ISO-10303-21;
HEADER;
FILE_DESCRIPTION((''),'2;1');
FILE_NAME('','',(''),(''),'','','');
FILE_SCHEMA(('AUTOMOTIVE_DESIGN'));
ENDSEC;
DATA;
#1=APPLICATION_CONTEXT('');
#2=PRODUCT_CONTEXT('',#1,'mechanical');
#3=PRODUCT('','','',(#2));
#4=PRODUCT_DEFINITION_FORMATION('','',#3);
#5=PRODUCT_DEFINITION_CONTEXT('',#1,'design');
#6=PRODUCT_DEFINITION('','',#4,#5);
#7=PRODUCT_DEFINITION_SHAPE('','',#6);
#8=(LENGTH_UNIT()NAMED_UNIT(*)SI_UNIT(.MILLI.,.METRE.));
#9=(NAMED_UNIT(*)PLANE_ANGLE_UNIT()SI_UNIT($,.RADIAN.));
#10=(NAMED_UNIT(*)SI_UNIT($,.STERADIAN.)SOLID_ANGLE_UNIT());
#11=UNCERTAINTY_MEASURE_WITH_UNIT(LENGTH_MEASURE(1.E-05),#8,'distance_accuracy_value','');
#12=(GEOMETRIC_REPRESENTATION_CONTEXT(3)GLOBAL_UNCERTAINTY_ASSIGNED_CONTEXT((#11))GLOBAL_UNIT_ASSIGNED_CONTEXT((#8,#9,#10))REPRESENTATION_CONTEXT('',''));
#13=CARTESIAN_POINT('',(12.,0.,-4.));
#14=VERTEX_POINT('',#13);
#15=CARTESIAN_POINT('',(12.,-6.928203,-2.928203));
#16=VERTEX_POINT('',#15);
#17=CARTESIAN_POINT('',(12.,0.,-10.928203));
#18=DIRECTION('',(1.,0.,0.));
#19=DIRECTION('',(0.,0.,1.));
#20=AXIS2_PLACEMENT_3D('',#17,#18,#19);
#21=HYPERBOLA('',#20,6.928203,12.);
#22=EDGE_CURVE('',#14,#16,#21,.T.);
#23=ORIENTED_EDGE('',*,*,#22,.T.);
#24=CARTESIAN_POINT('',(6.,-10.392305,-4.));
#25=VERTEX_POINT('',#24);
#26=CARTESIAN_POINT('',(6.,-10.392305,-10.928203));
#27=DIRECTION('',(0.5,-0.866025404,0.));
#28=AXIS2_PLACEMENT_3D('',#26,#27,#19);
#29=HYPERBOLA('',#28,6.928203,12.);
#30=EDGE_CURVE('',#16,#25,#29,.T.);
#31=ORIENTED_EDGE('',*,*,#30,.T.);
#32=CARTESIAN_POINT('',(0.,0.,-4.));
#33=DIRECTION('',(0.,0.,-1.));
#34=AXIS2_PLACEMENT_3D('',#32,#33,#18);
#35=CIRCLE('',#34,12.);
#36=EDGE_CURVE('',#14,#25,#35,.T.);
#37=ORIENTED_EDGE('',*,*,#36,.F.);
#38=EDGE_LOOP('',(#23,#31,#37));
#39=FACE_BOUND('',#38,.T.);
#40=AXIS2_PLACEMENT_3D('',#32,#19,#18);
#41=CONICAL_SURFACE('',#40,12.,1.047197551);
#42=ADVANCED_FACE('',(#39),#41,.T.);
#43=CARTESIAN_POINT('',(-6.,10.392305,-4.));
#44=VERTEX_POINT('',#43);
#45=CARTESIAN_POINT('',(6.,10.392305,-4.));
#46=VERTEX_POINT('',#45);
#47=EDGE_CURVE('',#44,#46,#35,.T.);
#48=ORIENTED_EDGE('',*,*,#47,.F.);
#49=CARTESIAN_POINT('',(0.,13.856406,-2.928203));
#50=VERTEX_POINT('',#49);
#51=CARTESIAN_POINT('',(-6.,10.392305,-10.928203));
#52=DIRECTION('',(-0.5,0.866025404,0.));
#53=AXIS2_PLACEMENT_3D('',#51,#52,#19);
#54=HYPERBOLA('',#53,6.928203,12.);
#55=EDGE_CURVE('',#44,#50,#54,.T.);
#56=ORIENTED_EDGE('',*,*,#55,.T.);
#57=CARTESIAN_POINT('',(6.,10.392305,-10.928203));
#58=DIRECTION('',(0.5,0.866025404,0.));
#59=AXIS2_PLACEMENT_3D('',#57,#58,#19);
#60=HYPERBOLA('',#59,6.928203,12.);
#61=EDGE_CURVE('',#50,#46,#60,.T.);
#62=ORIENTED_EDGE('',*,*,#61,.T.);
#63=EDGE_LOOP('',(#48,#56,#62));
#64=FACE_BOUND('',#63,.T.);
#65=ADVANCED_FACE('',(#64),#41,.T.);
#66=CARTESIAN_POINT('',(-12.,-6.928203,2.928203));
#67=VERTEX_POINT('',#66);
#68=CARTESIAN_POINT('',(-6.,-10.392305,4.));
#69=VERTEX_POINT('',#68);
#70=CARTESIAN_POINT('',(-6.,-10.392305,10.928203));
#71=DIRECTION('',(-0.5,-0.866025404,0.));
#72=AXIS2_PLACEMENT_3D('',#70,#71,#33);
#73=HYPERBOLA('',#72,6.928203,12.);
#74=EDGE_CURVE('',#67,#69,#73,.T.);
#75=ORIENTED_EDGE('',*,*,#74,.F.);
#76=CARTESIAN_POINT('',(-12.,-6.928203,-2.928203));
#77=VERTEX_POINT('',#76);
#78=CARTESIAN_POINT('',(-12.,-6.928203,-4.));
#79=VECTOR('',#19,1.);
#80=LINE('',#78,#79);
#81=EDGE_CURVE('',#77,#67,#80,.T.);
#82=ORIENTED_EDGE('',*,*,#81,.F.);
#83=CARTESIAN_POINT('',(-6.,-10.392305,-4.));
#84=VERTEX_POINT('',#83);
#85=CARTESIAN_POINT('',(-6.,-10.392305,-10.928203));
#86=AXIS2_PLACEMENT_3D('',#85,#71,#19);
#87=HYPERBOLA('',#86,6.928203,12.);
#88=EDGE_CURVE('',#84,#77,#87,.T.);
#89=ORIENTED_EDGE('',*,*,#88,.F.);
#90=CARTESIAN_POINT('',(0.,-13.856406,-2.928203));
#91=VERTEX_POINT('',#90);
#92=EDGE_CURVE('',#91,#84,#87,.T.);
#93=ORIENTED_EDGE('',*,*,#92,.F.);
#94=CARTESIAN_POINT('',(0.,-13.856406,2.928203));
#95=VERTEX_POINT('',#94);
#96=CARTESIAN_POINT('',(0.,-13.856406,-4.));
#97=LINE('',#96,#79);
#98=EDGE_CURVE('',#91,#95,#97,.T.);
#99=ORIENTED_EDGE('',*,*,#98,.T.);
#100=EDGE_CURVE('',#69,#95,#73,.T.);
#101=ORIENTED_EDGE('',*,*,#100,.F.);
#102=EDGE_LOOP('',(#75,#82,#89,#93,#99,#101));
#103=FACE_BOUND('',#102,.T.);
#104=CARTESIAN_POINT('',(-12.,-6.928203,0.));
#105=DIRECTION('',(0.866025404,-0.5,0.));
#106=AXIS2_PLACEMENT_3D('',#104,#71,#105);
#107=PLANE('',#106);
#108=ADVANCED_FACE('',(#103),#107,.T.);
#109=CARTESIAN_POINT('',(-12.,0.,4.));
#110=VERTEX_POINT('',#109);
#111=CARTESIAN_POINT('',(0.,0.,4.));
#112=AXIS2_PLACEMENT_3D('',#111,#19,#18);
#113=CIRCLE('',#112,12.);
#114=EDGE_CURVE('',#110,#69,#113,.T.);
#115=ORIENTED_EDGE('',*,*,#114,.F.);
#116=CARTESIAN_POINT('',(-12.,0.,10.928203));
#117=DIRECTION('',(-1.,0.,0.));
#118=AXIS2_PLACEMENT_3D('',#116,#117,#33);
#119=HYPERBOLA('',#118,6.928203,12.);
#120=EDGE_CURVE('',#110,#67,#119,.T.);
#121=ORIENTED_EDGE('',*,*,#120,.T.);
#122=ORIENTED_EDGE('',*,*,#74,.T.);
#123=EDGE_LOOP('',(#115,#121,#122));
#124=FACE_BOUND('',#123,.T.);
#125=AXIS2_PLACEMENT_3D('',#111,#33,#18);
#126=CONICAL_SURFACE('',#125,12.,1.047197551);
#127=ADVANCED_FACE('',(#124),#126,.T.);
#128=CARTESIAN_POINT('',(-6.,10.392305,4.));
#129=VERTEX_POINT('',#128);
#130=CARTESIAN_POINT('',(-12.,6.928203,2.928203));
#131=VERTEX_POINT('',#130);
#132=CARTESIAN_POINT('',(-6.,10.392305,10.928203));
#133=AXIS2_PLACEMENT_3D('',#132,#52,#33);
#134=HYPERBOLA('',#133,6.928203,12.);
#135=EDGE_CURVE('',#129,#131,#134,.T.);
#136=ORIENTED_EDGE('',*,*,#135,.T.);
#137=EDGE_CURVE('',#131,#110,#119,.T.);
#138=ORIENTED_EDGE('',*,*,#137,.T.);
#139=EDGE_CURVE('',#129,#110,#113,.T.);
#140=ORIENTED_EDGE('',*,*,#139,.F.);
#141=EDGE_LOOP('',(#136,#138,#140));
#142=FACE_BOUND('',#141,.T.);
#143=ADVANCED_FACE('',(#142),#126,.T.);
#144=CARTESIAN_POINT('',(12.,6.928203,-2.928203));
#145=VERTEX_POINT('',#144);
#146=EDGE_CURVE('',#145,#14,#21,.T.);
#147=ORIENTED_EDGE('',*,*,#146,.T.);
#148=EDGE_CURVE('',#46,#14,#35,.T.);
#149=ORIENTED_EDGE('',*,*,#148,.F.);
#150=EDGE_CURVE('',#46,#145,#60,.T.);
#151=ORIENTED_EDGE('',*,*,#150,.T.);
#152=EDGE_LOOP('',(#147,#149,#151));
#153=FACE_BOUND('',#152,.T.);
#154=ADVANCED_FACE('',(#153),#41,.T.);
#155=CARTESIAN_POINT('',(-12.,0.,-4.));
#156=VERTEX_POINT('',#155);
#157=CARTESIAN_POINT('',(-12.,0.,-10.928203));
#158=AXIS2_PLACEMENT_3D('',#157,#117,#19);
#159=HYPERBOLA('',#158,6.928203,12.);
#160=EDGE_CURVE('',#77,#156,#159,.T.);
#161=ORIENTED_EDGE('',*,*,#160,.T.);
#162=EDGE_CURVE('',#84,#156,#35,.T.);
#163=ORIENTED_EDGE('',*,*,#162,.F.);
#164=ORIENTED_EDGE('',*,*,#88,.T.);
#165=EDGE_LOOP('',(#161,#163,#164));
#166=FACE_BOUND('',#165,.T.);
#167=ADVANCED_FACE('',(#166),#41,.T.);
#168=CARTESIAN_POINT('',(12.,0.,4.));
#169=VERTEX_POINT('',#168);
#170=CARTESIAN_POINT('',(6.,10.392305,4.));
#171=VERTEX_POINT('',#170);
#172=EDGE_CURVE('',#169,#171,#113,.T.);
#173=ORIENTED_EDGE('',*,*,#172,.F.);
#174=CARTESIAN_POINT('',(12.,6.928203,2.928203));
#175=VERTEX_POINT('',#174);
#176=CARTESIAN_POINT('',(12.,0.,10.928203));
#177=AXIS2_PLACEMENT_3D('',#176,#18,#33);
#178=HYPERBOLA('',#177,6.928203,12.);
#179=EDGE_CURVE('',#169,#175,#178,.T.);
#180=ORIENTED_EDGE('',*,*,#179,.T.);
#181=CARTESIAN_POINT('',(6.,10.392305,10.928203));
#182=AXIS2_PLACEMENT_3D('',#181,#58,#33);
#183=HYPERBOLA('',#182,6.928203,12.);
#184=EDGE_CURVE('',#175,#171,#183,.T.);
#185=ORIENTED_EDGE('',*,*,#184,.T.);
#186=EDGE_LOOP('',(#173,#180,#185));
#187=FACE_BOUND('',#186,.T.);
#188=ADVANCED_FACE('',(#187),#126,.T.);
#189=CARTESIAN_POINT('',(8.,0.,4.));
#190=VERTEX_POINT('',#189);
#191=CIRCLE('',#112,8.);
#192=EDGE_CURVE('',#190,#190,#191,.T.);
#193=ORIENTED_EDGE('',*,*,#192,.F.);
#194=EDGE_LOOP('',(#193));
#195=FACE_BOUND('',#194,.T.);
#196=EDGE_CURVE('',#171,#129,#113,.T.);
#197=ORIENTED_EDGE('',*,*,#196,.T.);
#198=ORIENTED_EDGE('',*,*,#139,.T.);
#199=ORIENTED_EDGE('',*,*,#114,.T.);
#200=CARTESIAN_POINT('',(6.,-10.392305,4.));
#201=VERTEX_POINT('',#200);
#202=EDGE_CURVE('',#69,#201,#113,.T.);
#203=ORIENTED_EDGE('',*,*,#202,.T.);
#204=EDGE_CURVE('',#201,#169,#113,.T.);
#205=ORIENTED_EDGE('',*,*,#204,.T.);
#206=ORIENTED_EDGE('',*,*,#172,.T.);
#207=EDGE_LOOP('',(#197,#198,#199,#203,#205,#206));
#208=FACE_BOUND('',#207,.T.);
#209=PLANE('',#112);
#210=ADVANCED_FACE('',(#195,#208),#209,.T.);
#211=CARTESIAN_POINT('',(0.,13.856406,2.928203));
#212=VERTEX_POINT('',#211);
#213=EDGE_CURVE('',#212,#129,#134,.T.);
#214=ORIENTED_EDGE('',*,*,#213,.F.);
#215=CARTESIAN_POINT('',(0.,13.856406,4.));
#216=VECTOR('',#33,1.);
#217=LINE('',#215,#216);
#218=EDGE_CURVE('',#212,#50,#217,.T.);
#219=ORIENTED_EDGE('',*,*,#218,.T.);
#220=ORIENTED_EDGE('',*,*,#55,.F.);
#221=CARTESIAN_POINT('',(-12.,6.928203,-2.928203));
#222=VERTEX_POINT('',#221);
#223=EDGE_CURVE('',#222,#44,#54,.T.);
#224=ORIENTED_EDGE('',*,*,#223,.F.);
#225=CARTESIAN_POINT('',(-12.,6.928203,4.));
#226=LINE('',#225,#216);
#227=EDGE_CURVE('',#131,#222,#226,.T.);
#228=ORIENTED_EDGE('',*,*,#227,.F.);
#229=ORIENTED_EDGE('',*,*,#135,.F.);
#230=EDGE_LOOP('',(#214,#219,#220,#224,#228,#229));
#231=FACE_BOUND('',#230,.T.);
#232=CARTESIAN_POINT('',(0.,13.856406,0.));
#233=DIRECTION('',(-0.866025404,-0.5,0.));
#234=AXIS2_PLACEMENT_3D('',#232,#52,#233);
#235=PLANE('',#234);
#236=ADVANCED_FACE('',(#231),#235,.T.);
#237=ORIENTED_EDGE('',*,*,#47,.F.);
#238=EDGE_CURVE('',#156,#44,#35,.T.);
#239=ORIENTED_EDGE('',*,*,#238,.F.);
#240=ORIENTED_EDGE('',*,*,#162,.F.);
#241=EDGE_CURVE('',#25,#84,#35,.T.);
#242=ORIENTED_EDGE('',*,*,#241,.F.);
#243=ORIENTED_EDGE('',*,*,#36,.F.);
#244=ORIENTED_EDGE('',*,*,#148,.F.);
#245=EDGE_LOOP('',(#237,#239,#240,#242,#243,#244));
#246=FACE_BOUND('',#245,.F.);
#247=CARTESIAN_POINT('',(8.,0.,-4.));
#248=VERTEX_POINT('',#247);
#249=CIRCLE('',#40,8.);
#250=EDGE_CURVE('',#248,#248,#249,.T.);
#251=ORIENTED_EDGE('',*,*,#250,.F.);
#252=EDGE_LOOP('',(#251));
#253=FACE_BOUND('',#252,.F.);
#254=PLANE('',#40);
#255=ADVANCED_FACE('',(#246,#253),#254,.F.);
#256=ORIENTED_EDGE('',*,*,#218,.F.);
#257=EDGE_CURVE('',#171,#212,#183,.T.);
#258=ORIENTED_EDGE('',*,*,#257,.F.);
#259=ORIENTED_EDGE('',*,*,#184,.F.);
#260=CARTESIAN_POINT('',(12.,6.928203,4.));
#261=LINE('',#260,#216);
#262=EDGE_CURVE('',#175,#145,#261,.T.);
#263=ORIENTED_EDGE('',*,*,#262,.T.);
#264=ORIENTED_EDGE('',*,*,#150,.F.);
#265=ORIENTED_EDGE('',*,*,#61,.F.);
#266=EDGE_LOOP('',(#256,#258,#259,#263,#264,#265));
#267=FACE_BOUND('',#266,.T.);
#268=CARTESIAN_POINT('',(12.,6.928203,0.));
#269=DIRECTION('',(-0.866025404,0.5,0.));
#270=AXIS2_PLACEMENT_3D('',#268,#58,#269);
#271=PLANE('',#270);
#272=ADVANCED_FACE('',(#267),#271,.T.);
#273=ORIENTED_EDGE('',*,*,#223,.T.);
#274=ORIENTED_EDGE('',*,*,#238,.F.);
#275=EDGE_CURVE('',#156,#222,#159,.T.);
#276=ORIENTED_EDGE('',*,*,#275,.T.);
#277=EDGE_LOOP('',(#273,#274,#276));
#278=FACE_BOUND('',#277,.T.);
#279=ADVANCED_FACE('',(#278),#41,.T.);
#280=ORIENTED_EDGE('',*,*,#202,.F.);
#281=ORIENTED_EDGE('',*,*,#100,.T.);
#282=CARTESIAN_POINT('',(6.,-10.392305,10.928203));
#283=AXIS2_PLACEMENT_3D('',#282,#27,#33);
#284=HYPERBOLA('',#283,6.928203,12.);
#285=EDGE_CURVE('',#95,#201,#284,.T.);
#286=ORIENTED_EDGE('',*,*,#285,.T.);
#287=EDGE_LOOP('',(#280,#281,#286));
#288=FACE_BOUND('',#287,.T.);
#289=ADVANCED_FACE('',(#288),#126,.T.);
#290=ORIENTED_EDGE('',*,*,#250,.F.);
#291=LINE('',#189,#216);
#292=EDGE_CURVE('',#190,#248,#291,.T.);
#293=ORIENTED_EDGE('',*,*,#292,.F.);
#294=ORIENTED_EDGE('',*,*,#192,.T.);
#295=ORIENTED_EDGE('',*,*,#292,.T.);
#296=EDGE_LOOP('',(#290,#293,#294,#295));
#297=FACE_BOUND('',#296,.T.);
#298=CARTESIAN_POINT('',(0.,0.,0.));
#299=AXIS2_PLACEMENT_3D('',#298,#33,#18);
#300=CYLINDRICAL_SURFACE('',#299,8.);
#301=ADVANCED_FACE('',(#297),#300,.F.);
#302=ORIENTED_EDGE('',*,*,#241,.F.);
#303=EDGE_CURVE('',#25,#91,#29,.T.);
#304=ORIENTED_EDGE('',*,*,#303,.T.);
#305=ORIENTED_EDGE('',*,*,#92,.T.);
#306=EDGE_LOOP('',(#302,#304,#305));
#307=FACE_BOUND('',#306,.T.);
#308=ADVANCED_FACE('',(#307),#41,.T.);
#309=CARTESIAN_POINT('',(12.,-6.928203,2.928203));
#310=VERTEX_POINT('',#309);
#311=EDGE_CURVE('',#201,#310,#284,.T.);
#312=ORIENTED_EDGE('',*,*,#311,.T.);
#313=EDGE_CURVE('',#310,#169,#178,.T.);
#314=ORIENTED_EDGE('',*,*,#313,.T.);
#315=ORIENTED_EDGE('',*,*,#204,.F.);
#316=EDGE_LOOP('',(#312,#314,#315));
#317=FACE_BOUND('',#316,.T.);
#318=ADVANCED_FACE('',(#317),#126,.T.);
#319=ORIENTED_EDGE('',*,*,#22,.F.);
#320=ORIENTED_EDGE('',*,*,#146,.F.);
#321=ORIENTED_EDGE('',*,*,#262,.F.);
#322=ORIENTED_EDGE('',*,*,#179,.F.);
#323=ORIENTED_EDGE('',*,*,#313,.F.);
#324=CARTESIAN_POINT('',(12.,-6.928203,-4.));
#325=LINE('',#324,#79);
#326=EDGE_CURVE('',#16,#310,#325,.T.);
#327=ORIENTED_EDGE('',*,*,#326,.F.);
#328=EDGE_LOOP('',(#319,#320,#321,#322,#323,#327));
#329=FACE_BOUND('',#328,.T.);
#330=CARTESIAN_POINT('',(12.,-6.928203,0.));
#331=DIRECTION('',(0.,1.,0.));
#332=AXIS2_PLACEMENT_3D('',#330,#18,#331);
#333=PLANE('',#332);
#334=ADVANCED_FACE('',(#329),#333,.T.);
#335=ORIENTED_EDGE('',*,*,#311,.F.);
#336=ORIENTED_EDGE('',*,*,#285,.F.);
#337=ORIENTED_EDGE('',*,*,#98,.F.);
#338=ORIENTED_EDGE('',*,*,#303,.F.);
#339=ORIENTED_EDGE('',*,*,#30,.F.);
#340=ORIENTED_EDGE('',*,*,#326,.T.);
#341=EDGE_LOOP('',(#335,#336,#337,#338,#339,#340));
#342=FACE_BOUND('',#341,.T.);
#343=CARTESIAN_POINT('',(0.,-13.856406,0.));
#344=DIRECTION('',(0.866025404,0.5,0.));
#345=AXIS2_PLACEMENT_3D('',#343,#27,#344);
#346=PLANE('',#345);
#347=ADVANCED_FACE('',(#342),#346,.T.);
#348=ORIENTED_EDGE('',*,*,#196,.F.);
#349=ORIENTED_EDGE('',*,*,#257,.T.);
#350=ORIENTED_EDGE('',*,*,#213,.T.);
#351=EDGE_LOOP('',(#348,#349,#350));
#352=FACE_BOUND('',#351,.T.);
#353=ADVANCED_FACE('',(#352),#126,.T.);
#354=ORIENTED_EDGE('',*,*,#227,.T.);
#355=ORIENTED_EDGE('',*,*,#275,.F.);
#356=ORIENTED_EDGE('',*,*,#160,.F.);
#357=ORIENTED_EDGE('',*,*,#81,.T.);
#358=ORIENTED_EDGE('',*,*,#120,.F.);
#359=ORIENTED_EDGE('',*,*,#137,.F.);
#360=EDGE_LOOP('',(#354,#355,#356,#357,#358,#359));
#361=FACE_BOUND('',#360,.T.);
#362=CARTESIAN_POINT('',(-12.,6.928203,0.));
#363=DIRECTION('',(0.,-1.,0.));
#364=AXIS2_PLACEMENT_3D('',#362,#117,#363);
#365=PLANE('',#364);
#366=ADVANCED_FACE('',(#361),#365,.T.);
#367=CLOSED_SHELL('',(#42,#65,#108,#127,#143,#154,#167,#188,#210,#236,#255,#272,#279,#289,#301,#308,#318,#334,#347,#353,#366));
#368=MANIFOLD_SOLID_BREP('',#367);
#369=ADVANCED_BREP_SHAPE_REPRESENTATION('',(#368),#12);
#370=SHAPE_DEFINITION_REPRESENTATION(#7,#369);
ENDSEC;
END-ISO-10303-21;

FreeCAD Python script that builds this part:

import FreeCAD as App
import Part
import Sketcher
from FreeCAD import Vector
Q = App.Units.Quantity


def faces_at(feature, points):
    """Names of the faces that lie closest to the given points."""
    faces = feature.Shape.Faces
    near = lambda p: min(range(len(faces)), key=lambda i: faces[i].distToShape(Part.Vertex(*p))[0])
    return sorted({f"Face{near(p) + 1}" for p in points})


def add_polygon(sketch, points):
    """Adds a closed chain of lines whose ends are joined by coincident constraints."""
    first, n = sketch.GeometryCount, len(points)
    for a, b in zip(points, points[1:] + points[:1]):
        sketch.addGeometry(Part.LineSegment(App.Vector(*a, 0), App.Vector(*b, 0)), False)
    for i in range(n):
        sketch.addConstraint(Sketcher.Constraint("Coincident", first + i, 2, first + (i + 1) % n, 1))

doc = App.newDocument("Part")
body = doc.addObject("PartDesign::Body", "Body")

# Sketch on XY plane
sketch1 = body.newObject("Sketcher::SketchObject", "Sketch")
sketch1.AttachmentSupport = (doc.getObject("XY_Plane"), [""])
sketch1.MapMode = "FlatFace"
add_polygon(sketch1, [(-12, 6.928203), (-12, -6.928203), (0, -13.856406), (12, -6.928203), (12, 6.928203), (0, 13.856406)])  # lines 0-5
sketch1.addGeometry(Part.Circle(Vector(0, 0, 0), Vector(0, 0, 1), 8), False)  # 6
sketch1.addConstraint(Sketcher.Constraint("Vertical", 0))
sketch1.addConstraint(Sketcher.Constraint("Vertical", 3))
sketch1.addConstraint(Sketcher.Constraint("Coincident", 6, 3, -1, 1))
sketch1.addConstraint(Sketcher.Constraint("Symmetric", 0, 2, 3, 2, -1, 1))
sketch1.addConstraint(Sketcher.Constraint("Symmetric", 1, 2, 4, 2, -1, 1))
sketch1.addConstraint(Sketcher.Constraint("PointOnObject", 1, 2, -2))
sketch1.addConstraint(Sketcher.Constraint("Parallel", 2, 5))
sketch1.addConstraint(Sketcher.Constraint("Horizontal", 0, 2, 2, 2))
sketch1.addConstraint(Sketcher.Constraint("Diameter", 6, 16.0))
sketch1.addConstraint(Sketcher.Constraint("Angle", 1, Q("-30 deg")))
sketch1.addConstraint(Sketcher.Constraint("DistanceX", 0, 2, -1, 1, 12.0))
sketch1.addConstraint(Sketcher.Constraint("DistanceY", 0, 2, 0, 1, 13.856406))
pad1 = body.newObject("PartDesign::Pad", "Pad")
pad1.Profile = sketch1
pad1.Length = 8
pad1.Midplane = True
body2 = doc.addObject("PartDesign::Body", "Body001")

# Sketch on XY plane
sketch2 = body2.newObject("Sketcher::SketchObject", "Sketch001")
sketch2.AttachmentSupport = (doc.getObject("XY_Plane001"), [""])
sketch2.MapMode = "FlatFace"
sketch2.AttachmentOffset = App.Placement(Vector(0, 0, 4), App.Rotation())
add_polygon(sketch2, [(-30.609, 32.465), (-30.609, -32.465), (30.609, -32.465), (30.609, 32.465)])  # lines 0-3
sketch2.addGeometry(Part.Circle(Vector(0, 0, 0), Vector(0, 0, 1), 12), False)  # 4
sketch2.addConstraint(Sketcher.Constraint("Vertical", 0))
sketch2.addConstraint(Sketcher.Constraint("Horizontal", 1))
sketch2.addConstraint(Sketcher.Constraint("Vertical", 2))
sketch2.addConstraint(Sketcher.Constraint("Horizontal", 3))
sketch2.addConstraint(Sketcher.Constraint("Coincident", 4, 3, -1, 1))
sketch2.addConstraint(Sketcher.Constraint("Symmetric", 0, 2, 2, 2, -1, 1))
sketch2.addConstraint(Sketcher.Constraint("Diameter", 4, 24.0))
sketch2.addConstraint(Sketcher.Constraint("DistanceY", 0, 2, 0, 1, 64.93))
sketch2.addConstraint(Sketcher.Constraint("DistanceX", 1, 1, 1, 2, 61.218))
pad2 = body2.newObject("PartDesign::Pad", "Pad001")
pad2.Profile = sketch2
pad2.Length = 8
pad2.Reversed = True
doc.recompute()

datumplane = body2.newObject("PartDesign::Plane", "DatumPlane")
datumplane.AttachmentSupport = (doc.getObject("XY_Plane001"), [""])
datumplane.MapMode = "FlatFace"
datumplane.AttachmentOffset = App.Placement(Vector(0, 0, 4), App.Rotation())
draft = body2.newObject("PartDesign::Draft", "Draft")
draft.Base = (pad2, faces_at(pad2, [
    (0, -32.465, 0),
    (30.609, 0, 0),
    (0, 32.465, 0),
    (-30.609, 0, 0),
    (-12, 0, 0),
]))
draft.NeutralPlane = (datumplane, [""])
draft.Angle = 60
draft.Reversed = True
doc.recompute()

boolean = body.newObject("PartDesign::Boolean", "Boolean")
boolean.Type = "Cut"
boolean.addObjects([body2])
body3 = doc.addObject("PartDesign::Body", "Body002")

# Sketch on XY plane
sketch3 = body3.newObject("Sketcher::SketchObject", "Sketch002")
sketch3.AttachmentSupport = (doc.getObject("XY_Plane002"), [""])
sketch3.MapMode = "FlatFace"
sketch3.AttachmentOffset = App.Placement(Vector(0, 0, -4), App.Rotation())
add_polygon(sketch3, [(-30.609, -32.465), (-30.609, 32.465), (30.609, 32.465), (30.609, -32.465)])  # lines 0-3
sketch3.addGeometry(Part.Circle(Vector(0, 0, 0), Vector(0, 0, 1), 12), False)  # 4
sketch3.addConstraint(Sketcher.Constraint("Vertical", 0))
sketch3.addConstraint(Sketcher.Constraint("Horizontal", 1))
sketch3.addConstraint(Sketcher.Constraint("Vertical", 2))
sketch3.addConstraint(Sketcher.Constraint("Horizontal", 3))
sketch3.addConstraint(Sketcher.Constraint("Coincident", 4, 3, -1, 1))
sketch3.addConstraint(Sketcher.Constraint("Symmetric", 0, 2, 2, 2, -1, 1))
sketch3.addConstraint(Sketcher.Constraint("Diameter", 4, 24.0))
sketch3.addConstraint(Sketcher.Constraint("DistanceY", 0, 1, 0, 2, 64.93))
sketch3.addConstraint(Sketcher.Constraint("DistanceX", 1, 1, 1, 2, 61.218))
pad3 = body3.newObject("PartDesign::Pad", "Pad002")
pad3.Profile = sketch3
pad3.Length = 8
doc.recompute()

datumplane2 = body3.newObject("PartDesign::Plane", "DatumPlane001")
datumplane2.AttachmentSupport = (doc.getObject("XY_Plane002"), [""])
datumplane2.MapMode = "FlatFace"
datumplane2.AttachmentOffset = App.Placement(Vector(0, 0, -4), App.Rotation())
draft2 = body3.newObject("PartDesign::Draft", "Draft001")
draft2.Base = (pad3, faces_at(pad3, [
    (0, -32.465, 0),
    (30.609, 0, 0),
    (0, 32.465, 0),
    (-30.609, 0, 0),
    (-12, 0, 0),
]))
draft2.NeutralPlane = (datumplane2, [""])
draft2.Angle = 60
draft2.Reversed = False
doc.recompute()

boolean2 = body.newObject("PartDesign::Boolean", "Boolean001")
boolean2.Type = "Cut"
boolean2.addObjects([body3])

doc.recompute()
